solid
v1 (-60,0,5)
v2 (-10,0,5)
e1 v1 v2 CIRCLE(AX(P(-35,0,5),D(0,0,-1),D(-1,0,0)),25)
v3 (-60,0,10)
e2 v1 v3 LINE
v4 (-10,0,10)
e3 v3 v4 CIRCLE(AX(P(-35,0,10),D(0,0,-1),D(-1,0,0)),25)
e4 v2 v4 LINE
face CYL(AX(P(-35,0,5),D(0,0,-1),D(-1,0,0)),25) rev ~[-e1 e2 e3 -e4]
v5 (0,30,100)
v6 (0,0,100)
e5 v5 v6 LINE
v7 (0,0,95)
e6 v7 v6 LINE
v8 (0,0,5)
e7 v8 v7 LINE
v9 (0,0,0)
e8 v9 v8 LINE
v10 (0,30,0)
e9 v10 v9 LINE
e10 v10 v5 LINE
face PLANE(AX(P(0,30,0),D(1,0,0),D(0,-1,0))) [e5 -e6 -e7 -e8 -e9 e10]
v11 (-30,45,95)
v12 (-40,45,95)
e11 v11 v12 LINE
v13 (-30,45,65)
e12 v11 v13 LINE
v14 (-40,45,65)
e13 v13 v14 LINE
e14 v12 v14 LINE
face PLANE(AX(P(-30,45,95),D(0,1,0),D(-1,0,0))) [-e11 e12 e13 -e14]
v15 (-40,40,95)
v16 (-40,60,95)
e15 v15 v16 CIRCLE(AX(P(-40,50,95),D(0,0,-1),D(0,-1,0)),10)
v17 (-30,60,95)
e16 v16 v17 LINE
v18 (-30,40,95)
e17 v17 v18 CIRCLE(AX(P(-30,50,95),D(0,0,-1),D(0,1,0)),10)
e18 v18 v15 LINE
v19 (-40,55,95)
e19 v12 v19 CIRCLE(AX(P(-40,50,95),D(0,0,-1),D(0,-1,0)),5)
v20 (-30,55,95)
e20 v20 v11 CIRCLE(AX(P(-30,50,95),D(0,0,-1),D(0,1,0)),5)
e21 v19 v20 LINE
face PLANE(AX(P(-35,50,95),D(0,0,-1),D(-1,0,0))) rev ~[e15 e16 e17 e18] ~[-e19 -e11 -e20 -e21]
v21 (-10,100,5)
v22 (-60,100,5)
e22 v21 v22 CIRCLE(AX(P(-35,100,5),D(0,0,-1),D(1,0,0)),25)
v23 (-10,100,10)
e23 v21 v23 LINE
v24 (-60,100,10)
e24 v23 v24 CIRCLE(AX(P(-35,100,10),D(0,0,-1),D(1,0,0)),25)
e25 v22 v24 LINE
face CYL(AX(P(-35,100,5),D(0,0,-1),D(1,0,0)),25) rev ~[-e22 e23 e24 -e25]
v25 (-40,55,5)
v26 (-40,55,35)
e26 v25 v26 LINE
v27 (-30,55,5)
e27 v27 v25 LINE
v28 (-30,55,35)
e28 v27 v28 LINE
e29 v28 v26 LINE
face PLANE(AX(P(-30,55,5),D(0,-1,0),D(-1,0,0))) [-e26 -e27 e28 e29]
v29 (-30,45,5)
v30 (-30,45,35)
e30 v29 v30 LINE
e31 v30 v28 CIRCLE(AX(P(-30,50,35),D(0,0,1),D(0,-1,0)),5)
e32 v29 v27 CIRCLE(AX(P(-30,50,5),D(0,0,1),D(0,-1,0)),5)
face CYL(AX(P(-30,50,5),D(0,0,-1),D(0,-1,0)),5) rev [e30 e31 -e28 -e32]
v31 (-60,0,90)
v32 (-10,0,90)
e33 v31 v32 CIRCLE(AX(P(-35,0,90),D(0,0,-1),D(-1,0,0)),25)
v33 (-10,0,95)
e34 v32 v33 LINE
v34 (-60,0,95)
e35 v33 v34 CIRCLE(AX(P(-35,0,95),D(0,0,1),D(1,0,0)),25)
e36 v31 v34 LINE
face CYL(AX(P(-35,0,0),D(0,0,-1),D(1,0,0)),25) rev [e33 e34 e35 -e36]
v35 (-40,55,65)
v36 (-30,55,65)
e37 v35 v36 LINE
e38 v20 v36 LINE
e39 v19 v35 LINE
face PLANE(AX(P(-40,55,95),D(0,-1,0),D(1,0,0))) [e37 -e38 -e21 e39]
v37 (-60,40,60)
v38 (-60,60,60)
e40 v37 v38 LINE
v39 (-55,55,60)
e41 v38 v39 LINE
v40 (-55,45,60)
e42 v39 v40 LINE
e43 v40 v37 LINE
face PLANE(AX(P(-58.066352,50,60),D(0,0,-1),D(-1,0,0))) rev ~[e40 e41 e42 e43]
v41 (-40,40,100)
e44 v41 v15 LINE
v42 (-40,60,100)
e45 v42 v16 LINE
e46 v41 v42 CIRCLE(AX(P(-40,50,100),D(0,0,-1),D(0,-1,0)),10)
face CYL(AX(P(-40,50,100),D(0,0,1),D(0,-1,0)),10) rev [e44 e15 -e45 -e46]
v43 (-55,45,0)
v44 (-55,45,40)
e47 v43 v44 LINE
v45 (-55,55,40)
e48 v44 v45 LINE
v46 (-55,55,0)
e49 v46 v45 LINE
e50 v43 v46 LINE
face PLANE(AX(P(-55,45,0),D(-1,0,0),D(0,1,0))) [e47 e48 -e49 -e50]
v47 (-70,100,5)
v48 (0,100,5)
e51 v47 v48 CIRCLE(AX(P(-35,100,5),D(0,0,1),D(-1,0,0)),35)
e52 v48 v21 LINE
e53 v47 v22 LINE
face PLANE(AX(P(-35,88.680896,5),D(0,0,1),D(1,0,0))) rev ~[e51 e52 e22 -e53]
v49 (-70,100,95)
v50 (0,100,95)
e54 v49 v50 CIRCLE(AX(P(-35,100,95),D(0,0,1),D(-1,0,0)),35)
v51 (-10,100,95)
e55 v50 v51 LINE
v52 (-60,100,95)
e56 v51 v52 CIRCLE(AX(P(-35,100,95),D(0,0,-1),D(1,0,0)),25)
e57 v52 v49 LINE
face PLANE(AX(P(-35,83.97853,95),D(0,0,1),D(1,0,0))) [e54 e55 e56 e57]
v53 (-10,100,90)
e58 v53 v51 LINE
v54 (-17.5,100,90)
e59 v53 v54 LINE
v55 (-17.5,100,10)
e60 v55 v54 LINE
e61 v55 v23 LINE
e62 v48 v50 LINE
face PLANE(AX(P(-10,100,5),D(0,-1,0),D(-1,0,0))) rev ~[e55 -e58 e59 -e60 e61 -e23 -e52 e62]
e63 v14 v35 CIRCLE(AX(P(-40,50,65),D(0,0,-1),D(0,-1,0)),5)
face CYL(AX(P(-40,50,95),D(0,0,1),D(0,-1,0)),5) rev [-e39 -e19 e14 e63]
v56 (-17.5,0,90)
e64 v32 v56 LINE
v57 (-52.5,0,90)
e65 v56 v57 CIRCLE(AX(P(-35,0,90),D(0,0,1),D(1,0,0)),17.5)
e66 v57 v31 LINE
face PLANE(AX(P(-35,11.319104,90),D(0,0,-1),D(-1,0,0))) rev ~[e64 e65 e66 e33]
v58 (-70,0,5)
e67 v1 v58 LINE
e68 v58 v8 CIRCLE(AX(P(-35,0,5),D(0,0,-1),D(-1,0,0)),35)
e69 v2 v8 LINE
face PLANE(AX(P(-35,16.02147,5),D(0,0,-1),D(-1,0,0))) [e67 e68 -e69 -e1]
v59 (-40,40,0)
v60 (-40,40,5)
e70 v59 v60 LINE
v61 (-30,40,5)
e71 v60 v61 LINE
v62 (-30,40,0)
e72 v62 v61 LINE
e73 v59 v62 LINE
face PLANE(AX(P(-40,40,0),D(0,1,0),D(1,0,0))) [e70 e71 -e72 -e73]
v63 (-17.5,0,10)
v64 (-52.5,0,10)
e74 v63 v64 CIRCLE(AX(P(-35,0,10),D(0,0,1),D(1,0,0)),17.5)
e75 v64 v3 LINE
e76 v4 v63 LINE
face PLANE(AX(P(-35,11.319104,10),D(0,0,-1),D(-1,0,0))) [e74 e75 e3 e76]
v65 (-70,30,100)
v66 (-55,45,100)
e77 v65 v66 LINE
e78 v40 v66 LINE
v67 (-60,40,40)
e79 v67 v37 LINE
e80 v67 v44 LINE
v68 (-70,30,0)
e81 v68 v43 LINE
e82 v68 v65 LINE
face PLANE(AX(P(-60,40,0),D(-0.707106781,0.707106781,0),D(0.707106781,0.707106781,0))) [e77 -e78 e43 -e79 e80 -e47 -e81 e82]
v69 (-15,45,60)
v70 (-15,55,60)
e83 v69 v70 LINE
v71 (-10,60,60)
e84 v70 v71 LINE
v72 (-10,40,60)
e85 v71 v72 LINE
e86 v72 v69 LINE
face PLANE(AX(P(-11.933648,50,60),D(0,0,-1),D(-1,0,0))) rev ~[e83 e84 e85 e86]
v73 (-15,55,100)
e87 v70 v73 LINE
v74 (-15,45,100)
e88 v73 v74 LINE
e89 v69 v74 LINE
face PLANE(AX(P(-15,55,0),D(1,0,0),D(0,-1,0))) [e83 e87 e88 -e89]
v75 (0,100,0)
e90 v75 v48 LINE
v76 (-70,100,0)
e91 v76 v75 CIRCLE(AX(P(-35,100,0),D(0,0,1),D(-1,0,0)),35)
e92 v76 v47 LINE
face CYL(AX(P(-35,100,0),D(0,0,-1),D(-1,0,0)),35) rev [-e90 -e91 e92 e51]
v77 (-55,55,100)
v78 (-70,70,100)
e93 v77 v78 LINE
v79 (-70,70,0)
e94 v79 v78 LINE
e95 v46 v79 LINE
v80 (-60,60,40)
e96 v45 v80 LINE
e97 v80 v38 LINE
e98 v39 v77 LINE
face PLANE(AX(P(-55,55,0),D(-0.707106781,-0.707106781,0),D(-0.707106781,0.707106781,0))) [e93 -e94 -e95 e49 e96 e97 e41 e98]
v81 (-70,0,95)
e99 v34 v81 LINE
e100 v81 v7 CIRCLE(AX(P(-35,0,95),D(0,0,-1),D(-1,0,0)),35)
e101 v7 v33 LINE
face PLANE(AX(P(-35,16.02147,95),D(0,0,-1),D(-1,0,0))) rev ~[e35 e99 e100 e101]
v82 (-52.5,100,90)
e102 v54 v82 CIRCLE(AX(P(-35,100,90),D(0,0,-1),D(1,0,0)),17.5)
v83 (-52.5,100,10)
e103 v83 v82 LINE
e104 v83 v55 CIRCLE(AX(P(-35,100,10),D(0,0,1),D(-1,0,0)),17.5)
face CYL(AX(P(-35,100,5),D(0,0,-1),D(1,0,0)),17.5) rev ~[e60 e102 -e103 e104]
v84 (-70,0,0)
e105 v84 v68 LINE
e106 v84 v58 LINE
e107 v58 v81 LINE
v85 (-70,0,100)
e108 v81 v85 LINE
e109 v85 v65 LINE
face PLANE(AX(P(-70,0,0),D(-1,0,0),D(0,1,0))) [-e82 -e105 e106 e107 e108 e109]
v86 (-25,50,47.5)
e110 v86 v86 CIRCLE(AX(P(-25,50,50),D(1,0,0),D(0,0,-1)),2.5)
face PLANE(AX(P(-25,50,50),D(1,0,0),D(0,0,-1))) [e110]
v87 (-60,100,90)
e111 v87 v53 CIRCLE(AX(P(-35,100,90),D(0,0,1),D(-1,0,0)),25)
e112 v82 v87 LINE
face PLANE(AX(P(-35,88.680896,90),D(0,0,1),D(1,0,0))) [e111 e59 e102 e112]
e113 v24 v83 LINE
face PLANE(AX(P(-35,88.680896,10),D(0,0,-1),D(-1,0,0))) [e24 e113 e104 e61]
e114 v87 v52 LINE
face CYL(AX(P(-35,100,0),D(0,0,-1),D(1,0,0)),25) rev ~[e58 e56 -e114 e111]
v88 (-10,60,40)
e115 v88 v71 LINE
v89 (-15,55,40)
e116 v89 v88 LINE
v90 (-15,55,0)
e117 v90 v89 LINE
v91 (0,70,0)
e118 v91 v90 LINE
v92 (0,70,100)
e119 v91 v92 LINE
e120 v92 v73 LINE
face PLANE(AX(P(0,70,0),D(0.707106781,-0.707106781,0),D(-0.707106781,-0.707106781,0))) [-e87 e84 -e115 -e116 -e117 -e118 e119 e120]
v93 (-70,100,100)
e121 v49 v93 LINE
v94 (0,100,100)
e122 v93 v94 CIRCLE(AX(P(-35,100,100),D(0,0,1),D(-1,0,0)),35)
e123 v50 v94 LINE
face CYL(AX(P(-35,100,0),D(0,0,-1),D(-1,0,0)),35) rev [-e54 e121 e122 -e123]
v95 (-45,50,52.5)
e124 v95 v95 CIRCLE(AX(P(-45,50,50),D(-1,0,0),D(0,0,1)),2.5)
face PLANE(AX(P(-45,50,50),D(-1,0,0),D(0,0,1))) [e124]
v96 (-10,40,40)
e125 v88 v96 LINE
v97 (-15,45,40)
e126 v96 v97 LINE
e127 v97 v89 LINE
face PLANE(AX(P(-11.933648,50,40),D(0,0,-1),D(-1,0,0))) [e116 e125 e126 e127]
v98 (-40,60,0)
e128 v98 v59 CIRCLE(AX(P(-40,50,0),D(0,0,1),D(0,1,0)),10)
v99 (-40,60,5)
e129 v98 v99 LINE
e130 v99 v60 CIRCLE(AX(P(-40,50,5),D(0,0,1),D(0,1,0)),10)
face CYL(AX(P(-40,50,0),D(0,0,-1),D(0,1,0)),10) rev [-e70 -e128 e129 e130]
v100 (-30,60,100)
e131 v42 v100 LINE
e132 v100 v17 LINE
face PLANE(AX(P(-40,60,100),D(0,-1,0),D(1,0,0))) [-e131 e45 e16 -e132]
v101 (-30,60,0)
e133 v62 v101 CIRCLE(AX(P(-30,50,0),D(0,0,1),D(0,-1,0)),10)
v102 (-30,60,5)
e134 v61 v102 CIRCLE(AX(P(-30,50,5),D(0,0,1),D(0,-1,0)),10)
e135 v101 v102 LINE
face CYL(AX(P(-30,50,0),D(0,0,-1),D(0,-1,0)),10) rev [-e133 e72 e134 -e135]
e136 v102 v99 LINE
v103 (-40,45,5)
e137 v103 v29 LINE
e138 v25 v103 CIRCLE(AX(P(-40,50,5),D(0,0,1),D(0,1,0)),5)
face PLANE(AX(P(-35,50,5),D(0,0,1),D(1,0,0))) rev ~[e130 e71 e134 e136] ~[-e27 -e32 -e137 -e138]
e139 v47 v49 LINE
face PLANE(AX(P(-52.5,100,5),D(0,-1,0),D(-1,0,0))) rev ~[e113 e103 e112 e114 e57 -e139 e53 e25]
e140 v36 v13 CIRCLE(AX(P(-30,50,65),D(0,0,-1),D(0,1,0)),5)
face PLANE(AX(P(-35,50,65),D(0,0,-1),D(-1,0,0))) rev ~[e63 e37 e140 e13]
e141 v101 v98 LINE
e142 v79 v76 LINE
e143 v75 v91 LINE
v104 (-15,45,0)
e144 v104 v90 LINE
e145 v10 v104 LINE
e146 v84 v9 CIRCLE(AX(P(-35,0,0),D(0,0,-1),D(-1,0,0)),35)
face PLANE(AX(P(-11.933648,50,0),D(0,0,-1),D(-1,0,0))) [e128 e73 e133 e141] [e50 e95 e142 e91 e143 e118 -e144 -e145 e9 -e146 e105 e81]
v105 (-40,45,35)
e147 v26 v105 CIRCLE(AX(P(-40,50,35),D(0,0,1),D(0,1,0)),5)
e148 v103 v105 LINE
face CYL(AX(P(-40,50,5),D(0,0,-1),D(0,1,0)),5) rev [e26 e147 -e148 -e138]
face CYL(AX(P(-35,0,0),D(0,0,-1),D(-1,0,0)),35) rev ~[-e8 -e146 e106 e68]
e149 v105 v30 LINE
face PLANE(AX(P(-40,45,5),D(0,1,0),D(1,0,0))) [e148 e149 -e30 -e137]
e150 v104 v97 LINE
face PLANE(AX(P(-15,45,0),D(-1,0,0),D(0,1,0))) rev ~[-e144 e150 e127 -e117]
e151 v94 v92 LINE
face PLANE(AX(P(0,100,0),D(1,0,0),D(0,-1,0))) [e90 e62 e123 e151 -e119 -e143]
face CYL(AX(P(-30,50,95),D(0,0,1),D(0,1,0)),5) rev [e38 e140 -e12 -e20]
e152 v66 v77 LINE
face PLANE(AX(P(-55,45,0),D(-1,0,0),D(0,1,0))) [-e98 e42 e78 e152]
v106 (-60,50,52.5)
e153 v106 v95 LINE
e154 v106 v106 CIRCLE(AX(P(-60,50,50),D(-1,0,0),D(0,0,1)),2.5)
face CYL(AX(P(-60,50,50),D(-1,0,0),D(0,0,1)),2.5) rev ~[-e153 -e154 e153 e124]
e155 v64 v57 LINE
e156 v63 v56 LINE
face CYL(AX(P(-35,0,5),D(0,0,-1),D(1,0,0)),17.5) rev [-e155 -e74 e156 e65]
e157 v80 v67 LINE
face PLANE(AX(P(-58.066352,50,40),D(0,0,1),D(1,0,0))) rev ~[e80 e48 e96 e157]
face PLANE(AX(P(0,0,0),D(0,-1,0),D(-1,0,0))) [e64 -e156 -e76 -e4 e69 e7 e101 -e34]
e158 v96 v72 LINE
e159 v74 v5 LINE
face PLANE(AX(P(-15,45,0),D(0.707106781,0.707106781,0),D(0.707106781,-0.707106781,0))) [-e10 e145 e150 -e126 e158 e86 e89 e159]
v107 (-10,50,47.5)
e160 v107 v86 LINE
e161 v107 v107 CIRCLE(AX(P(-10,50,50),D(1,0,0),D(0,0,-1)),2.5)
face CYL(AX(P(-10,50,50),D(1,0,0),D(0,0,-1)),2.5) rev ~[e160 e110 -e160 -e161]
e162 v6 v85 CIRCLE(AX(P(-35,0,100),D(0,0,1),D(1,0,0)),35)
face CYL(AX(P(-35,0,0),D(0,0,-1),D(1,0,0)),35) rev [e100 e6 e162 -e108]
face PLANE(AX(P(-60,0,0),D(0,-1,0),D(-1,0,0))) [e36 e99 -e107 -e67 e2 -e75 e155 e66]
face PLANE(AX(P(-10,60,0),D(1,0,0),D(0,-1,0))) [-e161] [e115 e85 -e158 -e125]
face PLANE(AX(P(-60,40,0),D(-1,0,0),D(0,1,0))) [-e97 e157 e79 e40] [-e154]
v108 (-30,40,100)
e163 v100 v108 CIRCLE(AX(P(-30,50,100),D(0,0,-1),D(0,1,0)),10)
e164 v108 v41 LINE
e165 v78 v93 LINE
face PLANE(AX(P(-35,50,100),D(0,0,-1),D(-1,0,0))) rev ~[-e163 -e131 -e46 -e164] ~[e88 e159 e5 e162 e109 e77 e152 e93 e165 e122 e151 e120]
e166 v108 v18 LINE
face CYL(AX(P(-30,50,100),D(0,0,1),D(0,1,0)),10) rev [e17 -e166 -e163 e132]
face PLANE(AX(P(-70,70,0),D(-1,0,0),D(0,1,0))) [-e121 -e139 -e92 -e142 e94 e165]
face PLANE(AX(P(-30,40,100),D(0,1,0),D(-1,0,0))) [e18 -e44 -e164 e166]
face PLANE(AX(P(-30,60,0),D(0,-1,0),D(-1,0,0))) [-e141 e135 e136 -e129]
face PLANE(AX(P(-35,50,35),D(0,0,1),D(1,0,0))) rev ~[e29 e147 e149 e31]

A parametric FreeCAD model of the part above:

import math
import FreeCAD as App
import Part
import Sketcher


def add_polygon(sketch, points):
    """Adds a closed chain of lines whose ends are joined by coincident constraints."""
    first, n = sketch.GeometryCount, len(points)
    for a, b in zip(points, points[1:] + points[:1]):
        sketch.addGeometry(Part.LineSegment(App.Vector(*a, 0), App.Vector(*b, 0)), False)
    for i in range(n):
        sketch.addConstraint(Sketcher.Constraint("Coincident", first + i, 2, first + (i + 1) % n, 1))

doc = App.newDocument("Part")
body = doc.addObject("PartDesign::Body", "Body")

sketch1 = body.newObject("Sketcher::SketchObject", "Sketch")
sketch1.AttachmentSupport = (doc.getObject("XY_Plane"), [""])
sketch1.MapMode = "FlatFace"
sketch1.addGeometry([
    Part.LineSegment(App.Vector(-70, 30, 0), App.Vector(-70, 0, 0)),
    Part.ArcOfCircle(Part.Circle(App.Vector(-35, 0, 0), App.Vector(0, 0, 1), 35), math.radians(0), math.radians(180)),
    Part.LineSegment(App.Vector(0, 0, 0), App.Vector(0, 30, 0)),
    Part.LineSegment(App.Vector(0, 30, 0), App.Vector(-15, 45, 0)),
    Part.LineSegment(App.Vector(-15, 45, 0), App.Vector(-15, 55, 0)),
    Part.LineSegment(App.Vector(-15, 55, 0), App.Vector(0, 70, 0)),
    Part.LineSegment(App.Vector(0, 70, 0), App.Vector(0, 100, 0)),
    Part.ArcOfCircle(Part.Circle(App.Vector(-35, 100, 0), App.Vector(0, 0, 1), 35), math.radians(180), math.radians(360)),
    Part.LineSegment(App.Vector(-70, 100, 0), App.Vector(-70, 70, 0)),
    Part.LineSegment(App.Vector(-70, 70, 0), App.Vector(-55, 55, 0)),
    Part.LineSegment(App.Vector(-55, 55, 0), App.Vector(-55, 45, 0)),
    Part.LineSegment(App.Vector(-55, 45, 0), App.Vector(-70, 30, 0)),
], False)
sketch1.addConstraint([
    Sketcher.Constraint("Tangent", 0, 2, 1, 2),
    Sketcher.Constraint("Tangent", 1, 1, 2, 1),
    Sketcher.Constraint("Coincident", 2, 2, 3, 1),
    Sketcher.Constraint("Coincident", 3, 2, 4, 1),
    Sketcher.Constraint("Coincident", 4, 2, 5, 1),
    Sketcher.Constraint("Coincident", 5, 2, 6, 1),
    Sketcher.Constraint("Tangent", 6, 2, 7, 2),
    Sketcher.Constraint("Tangent", 7, 1, 8, 1),
    Sketcher.Constraint("Coincident", 8, 2, 9, 1),
    Sketcher.Constraint("Coincident", 9, 2, 10, 1),
    Sketcher.Constraint("Coincident", 10, 2, 11, 1),
    Sketcher.Constraint("Coincident", 11, 2, 0, 1),
    Sketcher.Constraint("Vertical", 0),
    Sketcher.Constraint("Vertical", 2),
    Sketcher.Constraint("Vertical", 4),
    Sketcher.Constraint("Vertical", 6),
    Sketcher.Constraint("Vertical", 8),
    Sketcher.Constraint("Vertical", 10),
    Sketcher.Constraint("Coincident", 1, 1, -1, 1),
    Sketcher.Constraint("Equal", 1, 7),
    Sketcher.Constraint("PointOnObject", 5, 2, -2),
    Sketcher.Constraint("Perpendicular", 3, 5),
    Sketcher.Constraint("Perpendicular", 5, 9),
    Sketcher.Constraint("Perpendicular", 9, 11),
    Sketcher.Constraint("Horizontal", 5, 2, 8, 2),
    Sketcher.Constraint("Horizontal", 4, 2, 9, 2),
    Sketcher.Constraint("Horizontal", 3, 2, 10, 2),
    Sketcher.Constraint("Horizontal", 2, 2, 11, 2),
    Sketcher.Constraint("Equal", 2, 6),
    Sketcher.Constraint("Radius", 1, 35.0),
    Sketcher.Constraint("DistanceY", 0, 2, 0, 1, 30.0),
    Sketcher.Constraint("DistanceY", 4, 1, 4, 2, 10.0),
    Sketcher.Constraint("DistanceY", -1, 1, 7, 3, 100.0),
])
pad1 = body.newObject("PartDesign::Pad", "Pad")
pad1.Profile = sketch1
pad1.Length = 100

sketch2 = body.newObject("Sketcher::SketchObject", "Sketch001")
sketch2.AttachmentSupport = (doc.getObject("XY_Plane"), [""])
sketch2.MapMode = "FlatFace"
sketch2.addGeometry([
    Part.LineSegment(App.Vector(-10, 100, 0), App.Vector(0, 100, 0)),
    Part.ArcOfCircle(Part.Circle(App.Vector(-35, 100, 0), App.Vector(0, 0, 1), 35), math.radians(180), math.radians(360)),
    Part.LineSegment(App.Vector(-70, 100, 0), App.Vector(-60, 100, 0)),
    Part.ArcOfCircle(Part.Circle(App.Vector(-35, 100, 0), App.Vector(0, 0, 1), 25), math.radians(180), math.radians(360)),
    Part.LineSegment(App.Vector(0, 0, 0), App.Vector(-10, 0, 0)),
    Part.ArcOfCircle(Part.Circle(App.Vector(-35, 0, 0), App.Vector(0, 0, 1), 25), math.radians(0), math.radians(180)),
    Part.LineSegment(App.Vector(-60, 0, 0), App.Vector(-70, 0, 0)),
    Part.ArcOfCircle(Part.Circle(App.Vector(-35, 0, 0), App.Vector(0, 0, 1), 35), math.radians(0), math.radians(180)),
], False)
sketch2.addConstraint([
    Sketcher.Constraint("Coincident", 0, 2, 1, 2),
    Sketcher.Constraint("Coincident", 1, 1, 2, 1),
    Sketcher.Constraint("Coincident", 2, 2, 3, 1),
    Sketcher.Constraint("Coincident", 3, 2, 0, 1),
    Sketcher.Constraint("Coincident", 4, 2, 5, 1),
    Sketcher.Constraint("Coincident", 5, 2, 6, 1),
    Sketcher.Constraint("Coincident", 6, 2, 7, 2),
    Sketcher.Constraint("Coincident", 7, 1, 4, 1),
    Sketcher.Constraint("Horizontal", 0),
    Sketcher.Constraint("Horizontal", 2),
    Sketcher.Constraint("Horizontal", 4),
    Sketcher.Constraint("Horizontal", 6),
    Sketcher.Constraint("Coincident", 7, 1, -1, 1),
    Sketcher.Constraint("Coincident", 3, 3, 1, 3),
    Sketcher.Constraint("Coincident", 7, 3, 5, 3),
    Sketcher.Constraint("Equal", 3, 5),
    Sketcher.Constraint("Equal", 1, 7),
    Sketcher.Constraint("PointOnObject", 5, 3, -1),
    Sketcher.Constraint("PointOnObject", 0, 2, -2),
    Sketcher.Constraint("PointOnObject", 5, 2, -1),
    Sketcher.Constraint("Horizontal", 3, 3, 0, 2),
    Sketcher.Constraint("Horizontal", 0, 2, 1, 1),
    Sketcher.Constraint("Radius", 1, 35.0),
    Sketcher.Constraint("Radius", 3, 25.0),
    Sketcher.Constraint("DistanceY", -1, 1, 1, 3, 100.0),
])
pad2 = body.newObject("PartDesign::Pad", "Pad001")
pad2.Profile = sketch2
pad2.Length = 95

sketch3 = body.newObject("Sketcher::SketchObject", "Sketch002")
sketch3.AttachmentSupport = (doc.getObject("XY_Plane"), [""])
sketch3.MapMode = "FlatFace"
sketch3.addGeometry([
    Part.LineSegment(App.Vector(-10, 100, 0), App.Vector(0, 100, 0)),
    Part.ArcOfCircle(Part.Circle(App.Vector(-35, 100, 0), App.Vector(0, 0, 1), 35), math.radians(180), math.radians(360)),
    Part.LineSegment(App.Vector(-70, 100, 0), App.Vector(-60, 100, 0)),
    Part.ArcOfCircle(Part.Circle(App.Vector(-35, 100, 0), App.Vector(0, 0, 1), 25), math.radians(180), math.radians(360)),
    Part.LineSegment(App.Vector(-60, 0, 0), App.Vector(-70, 0, 0)),
    Part.ArcOfCircle(Part.Circle(App.Vector(-35, 0, 0), App.Vector(0, 0, 1), 35), math.radians(0), math.radians(180)),
    Part.LineSegment(App.Vector(0, 0, 0), App.Vector(-10, 0, 0)),
    Part.ArcOfCircle(Part.Circle(App.Vector(-35, 0, 0), App.Vector(0, 0, 1), 25), math.radians(0), math.radians(180)),
], False)
sketch3.addConstraint([
    Sketcher.Constraint("Coincident", 0, 2, 1, 2),
    Sketcher.Constraint("Coincident", 1, 1, 2, 1),
    Sketcher.Constraint("Coincident", 2, 2, 3, 1),
    Sketcher.Constraint("Coincident", 3, 2, 0, 1),
    Sketcher.Constraint("Coincident", 4, 2, 5, 2),
    Sketcher.Constraint("Coincident", 5, 1, 6, 1),
    Sketcher.Constraint("Coincident", 6, 2, 7, 1),
    Sketcher.Constraint("Coincident", 7, 2, 4, 1),
    Sketcher.Constraint("Horizontal", 0),
    Sketcher.Constraint("Horizontal", 2),
    Sketcher.Constraint("Horizontal", 4),
    Sketcher.Constraint("Horizontal", 6),
    Sketcher.Constraint("Coincident", 5, 1, -1, 1),
    Sketcher.Constraint("Coincident", 3, 3, 1, 3),
    Sketcher.Constraint("Coincident", 7, 3, 5, 3),
    Sketcher.Constraint("Equal", 1, 5),
    Sketcher.Constraint("Equal", 3, 7),
    Sketcher.Constraint("PointOnObject", 5, 3, -1),
    Sketcher.Constraint("PointOnObject", 0, 2, -2),
    Sketcher.Constraint("PointOnObject", 4, 2, -1),
    Sketcher.Constraint("Horizontal", 3, 3, 0, 2),
    Sketcher.Constraint("Horizontal", 0, 2, 1, 1),
    Sketcher.Constraint("Radius", 1, 35.0),
    Sketcher.Constraint("Radius", 3, 25.0),
    Sketcher.Constraint("DistanceY", -1, 1, 1, 3, 100.0),
])
pocket1 = body.newObject("PartDesign::Pocket", "Pocket")
pocket1.Profile = sketch3
pocket1.Length = 5
pocket1.Reversed = True

sketch4 = body.newObject("Sketcher::SketchObject", "Sketch003")
sketch4.AttachmentSupport = (doc.getObject("XY_Plane"), [""])
sketch4.MapMode = "FlatFace"
sketch4.AttachmentOffset = App.Placement(App.Vector(0, 0, 5), App.Rotation())
sketch4.addGeometry([
    Part.LineSegment(App.Vector(-18, 100, 0), App.Vector(-10, 100, 0)),
    Part.ArcOfCircle(Part.Circle(App.Vector(-35, 100, 0), App.Vector(0, 0, 1), 25), math.radians(180), math.radians(360)),
    Part.LineSegment(App.Vector(-60, 100, 0), App.Vector(-52, 100, 0)),
    Part.ArcOfCircle(Part.Circle(App.Vector(-35, 100, 0), App.Vector(0, 0, 1), 18), math.radians(180), math.radians(360)),
    Part.LineSegment(App.Vector(-10, 0, 0), App.Vector(-18, 0, 0)),
    Part.ArcOfCircle(Part.Circle(App.Vector(-35, 0, 0), App.Vector(0, 0, 1), 18), math.radians(0), math.radians(180)),
    Part.LineSegment(App.Vector(-52, 0, 0), App.Vector(-60, 0, 0)),
    Part.ArcOfCircle(Part.Circle(App.Vector(-35, 0, 0), App.Vector(0, 0, 1), 25), math.radians(0), math.radians(180)),
], False)
sketch4.addConstraint([
    Sketcher.Constraint("Coincident", 0, 2, 1, 2),
    Sketcher.Constraint("Coincident", 1, 1, 2, 1),
    Sketcher.Constraint("Coincident", 2, 2, 3, 1),
    Sketcher.Constraint("Coincident", 3, 2, 0, 1),
    Sketcher.Constraint("Coincident", 4, 2, 5, 1),
    Sketcher.Constraint("Coincident", 5, 2, 6, 1),
    Sketcher.Constraint("Coincident", 6, 2, 7, 2),
    Sketcher.Constraint("Coincident", 7, 1, 4, 1),
    Sketcher.Constraint("Horizontal", 0),
    Sketcher.Constraint("Horizontal", 2),
    Sketcher.Constraint("Horizontal", 4),
    Sketcher.Constraint("Horizontal", 6),
    Sketcher.Constraint("Coincident", 3, 3, 1, 3),
    Sketcher.Constraint("Coincident", 7, 3, 5, 3),
    Sketcher.Constraint("Equal", 3, 5),
    Sketcher.Constraint("Equal", 1, 7),
    Sketcher.Constraint("PointOnObject", 5, 3, -1),
    Sketcher.Constraint("PointOnObject", 4, 2, -1),
    Sketcher.Constraint("PointOnObject", 5, 2, -1),
    Sketcher.Constraint("Horizontal", 3, 3, 0, 2),
    Sketcher.Constraint("Horizontal", 0, 2, 1, 1),
    Sketcher.Constraint("Vertical", 3, 3, 5, 3),
    Sketcher.Constraint("Radius", 1, 25.0),
    Sketcher.Constraint("Radius", 3, 17.5),
    Sketcher.Constraint("DistanceX", 1, 3, -1, 1, 35.0),
    Sketcher.Constraint("DistanceY", -1, 1, 1, 3, 100.0),
])
pad3 = body.newObject("PartDesign::Pad", "Pad002")
pad3.Profile = sketch4
pad3.Length = 85

sketch5 = body.newObject("Sketcher::SketchObject", "Sketch004")
sketch5.AttachmentSupport = (doc.getObject("XY_Plane"), [""])
sketch5.MapMode = "FlatFace"
sketch5.AttachmentOffset = App.Placement(App.Vector(0, 0, 5), App.Rotation())
sketch5.addGeometry([
    Part.ArcOfCircle(Part.Circle(App.Vector(-35, 100, 0), App.Vector(0, 0, 1), 18), math.radians(180), math.radians(360)),
    Part.LineSegment(App.Vector(-18, 100, 0), App.Vector(-10, 100, 0)),
    Part.ArcOfCircle(Part.Circle(App.Vector(-35, 100, 0), App.Vector(0, 0, 1), 25), math.radians(180), math.radians(360)),
    Part.LineSegment(App.Vector(-60, 100, 0), App.Vector(-52, 100, 0)),
    Part.LineSegment(App.Vector(-10, 0, 0), App.Vector(-18, 0, 0)),
    Part.ArcOfCircle(Part.Circle(App.Vector(-35, 0, 0), App.Vector(0, 0, 1), 18), math.radians(0), math.radians(180)),
    Part.LineSegment(App.Vector(-52, 0, 0), App.Vector(-60, 0, 0)),
    Part.ArcOfCircle(Part.Circle(App.Vector(-35, 0, 0), App.Vector(0, 0, 1), 25), math.radians(0), math.radians(180)),
], False)
sketch5.addConstraint([
    Sketcher.Constraint("Coincident", 0, 2, 1, 1),
    Sketcher.Constraint("Coincident", 1, 2, 2, 2),
    Sketcher.Constraint("Coincident", 2, 1, 3, 1),
    Sketcher.Constraint("Coincident", 3, 2, 0, 1),
    Sketcher.Constraint("Coincident", 4, 2, 5, 1),
    Sketcher.Constraint("Coincident", 5, 2, 6, 1),
    Sketcher.Constraint("Coincident", 6, 2, 7, 2),
    Sketcher.Constraint("Coincident", 7, 1, 4, 1),
    Sketcher.Constraint("Horizontal", 1),
    Sketcher.Constraint("Horizontal", 3),
    Sketcher.Constraint("Horizontal", 4),
    Sketcher.Constraint("Horizontal", 6),
    Sketcher.Constraint("Coincident", 2, 3, 0, 3),
    Sketcher.Constraint("Coincident", 7, 3, 5, 3),
    Sketcher.Constraint("Equal", 0, 5),
    Sketcher.Constraint("Equal", 2, 7),
    Sketcher.Constraint("PointOnObject", 5, 3, -1),
    Sketcher.Constraint("PointOnObject", 4, 2, -1),
    Sketcher.Constraint("PointOnObject", 5, 2, -1),
    Sketcher.Constraint("Horizontal", 2, 3, 0, 2),
    Sketcher.Constraint("Horizontal", 1, 2, 2, 1),
    Sketcher.Constraint("Vertical", 2, 3, 5, 3),
    Sketcher.Constraint("Radius", 2, 25.0),
    Sketcher.Constraint("Radius", 0, 17.5),
    Sketcher.Constraint("DistanceX", 0, 3, -1, 1, 35.0),
    Sketcher.Constraint("DistanceY", -1, 1, 0, 3, 100.0),
])
pocket2 = body.newObject("PartDesign::Pocket", "Pocket001")
pocket2.Profile = sketch5
pocket2.Length = 5
pocket2.Reversed = True

sketch6 = body.newObject("Sketcher::SketchObject", "Sketch005")
sketch6.AttachmentSupport = (doc.getObject("XY_Plane"), [""])
sketch6.MapMode = "FlatFace"
add_polygon(sketch6, [(-10, 40), (-15, 45), (-15, 55), (-10, 60)])
add_polygon(sketch6, [(-60, 60), (-55, 55), (-55, 45), (-60, 40)])
sketch6.addConstraint([
    Sketcher.Constraint("Vertical", 1),
    Sketcher.Constraint("Vertical", 3),
    Sketcher.Constraint("Vertical", 5),
    Sketcher.Constraint("Vertical", 7),
    Sketcher.Constraint("Perpendicular", 0, 2),
    Sketcher.Constraint("Perpendicular", 2, 4),
    Sketcher.Constraint("Perpendicular", 4, 6),
    Sketcher.Constraint("Horizontal", 1, 2, 4, 2),
    Sketcher.Constraint("Horizontal", 0, 2, 5, 2),
    Sketcher.Constraint("Horizontal", 3, 2, 6, 2),
    Sketcher.Constraint("Horizontal", 2, 2, 7, 2),
    Sketcher.Constraint("DistanceY", 1, 1, 1, 2, 10.0),
    Sketcher.Constraint("DistanceY", 3, 2, 3, 1, 20.0),
    Sketcher.Constraint("DistanceX", 0, 2, -1, 1, 15.0),
    Sketcher.Constraint("DistanceY", -1, 1, 0, 2, 45.0),
    Sketcher.Constraint("DistanceX", 4, 2, -1, 1, 55.0),
])
pad4 = body.newObject("PartDesign::Pad", "Pad003")
pad4.Profile = sketch6
pad4.Length = 60

sketch7 = body.newObject("Sketcher::SketchObject", "Sketch006")
sketch7.AttachmentSupport = (doc.getObject("XY_Plane"), [""])
sketch7.MapMode = "FlatFace"
add_polygon(sketch7, [(-10, 40), (-15, 45), (-15, 55), (-10, 60)])
add_polygon(sketch7, [(-55, 45), (-60, 40), (-60, 60), (-55, 55)])
sketch7.addConstraint([
    Sketcher.Constraint("Vertical", 1),
    Sketcher.Constraint("Vertical", 3),
    Sketcher.Constraint("Vertical", 5),
    Sketcher.Constraint("Vertical", 7),
    Sketcher.Constraint("Perpendicular", 0, 2),
    Sketcher.Constraint("Parallel", 2, 4),
    Sketcher.Constraint("Perpendicular", 4, 6),
    Sketcher.Constraint("Horizontal", 3, 2, 4, 2),
    Sketcher.Constraint("Horizontal", 2, 2, 5, 2),
    Sketcher.Constraint("Horizontal", 1, 2, 6, 2),
    Sketcher.Constraint("Horizontal", 0, 2, 7, 2),
    Sketcher.Constraint("DistanceY", 1, 1, 1, 2, 10.0),
    Sketcher.Constraint("DistanceY", 3, 2, 3, 1, 20.0),
    Sketcher.Constraint("DistanceX", 0, 2, -1, 1, 15.0),
    Sketcher.Constraint("DistanceY", -1, 1, 0, 2, 45.0),
    Sketcher.Constraint("DistanceX", 4, 2, -1, 1, 60.0),
])
pocket3 = body.newObject("PartDesign::Pocket", "Pocket002")
pocket3.Profile = sketch7
pocket3.Length = 40
pocket3.Reversed = True

sketch8 = body.newObject("Sketcher::SketchObject", "Sketch007")
sketch8.AttachmentSupport = (doc.getObject("YZ_Plane"), [""])
sketch8.MapMode = "FlatFace"
sketch8.AttachmentOffset = App.Placement(App.Vector(0, 0, -10), App.Rotation())
sketch8.addGeometry(Part.Circle(App.Vector(50, 50, 0), App.Vector(0, 0, 1), 2.5), False)
sketch8.addConstraint([
    Sketcher.Constraint("Diameter", 0, 5.0),
    Sketcher.Constraint("DistanceX", -1, 1, 0, 3, 50.0),
    Sketcher.Constraint("DistanceY", -1, 1, 0, 3, 50.0),
])
pocket4 = body.newObject("PartDesign::Pocket", "Pocket003")
pocket4.Profile = sketch8
pocket4.Length = 15

sketch9 = body.newObject("Sketcher::SketchObject", "Sketch008")
sketch9.AttachmentSupport = (doc.getObject("YZ_Plane"), [""])
sketch9.MapMode = "FlatFace"
sketch9.AttachmentOffset = App.Placement(App.Vector(0, 0, -60), App.Rotation())
sketch9.addGeometry(Part.Circle(App.Vector(50, 50, 0), App.Vector(0, 0, 1), 2.5), False)
sketch9.addConstraint([
    Sketcher.Constraint("Diameter", 0, 5.0),
    Sketcher.Constraint("DistanceX", -1, 1, 0, 3, 50.0),
    Sketcher.Constraint("DistanceY", -1, 1, 0, 3, 50.0),
])
pocket5 = body.newObject("PartDesign::Pocket", "Pocket004")
pocket5.Profile = sketch9
pocket5.Length = 15
pocket5.Reversed = True

sketch10 = body.newObject("Sketcher::SketchObject", "Sketch009")
sketch10.AttachmentSupport = (doc.getObject("XY_Plane"), [""])
sketch10.MapMode = "FlatFace"
sketch10.addGeometry([
    Part.LineSegment(App.Vector(-40, 60, 0), App.Vector(-30, 60, 0)),
    Part.ArcOfCircle(Part.Circle(App.Vector(-30, 50, 0), App.Vector(0, 0, 1), 10), math.radians(-90), math.radians(90)),
    Part.LineSegment(App.Vector(-30, 40, 0), App.Vector(-40, 40, 0)),
    Part.ArcOfCircle(Part.Circle(App.Vector(-40, 50, 0), App.Vector(0, 0, 1), 10), math.radians(90), math.radians(270)),
], False)
sketch10.addConstraint([
    Sketcher.Constraint("Tangent", 0, 2, 1, 2),
    Sketcher.Constraint("Tangent", 1, 1, 2, 1),
    Sketcher.Constraint("Tangent", 2, 2, 3, 2),
    Sketcher.Constraint("Tangent", 3, 1, 0, 1),
    Sketcher.Constraint("Horizontal", 0),
    Sketcher.Constraint("Horizontal", 2),
    Sketcher.Constraint("Radius", 1, 10.0),
    Sketcher.Constraint("DistanceX", 0, 1, 0, 2, 10.0),
    Sketcher.Constraint("DistanceX", 1, 3, -1, 1, 30.0),
    Sketcher.Constraint("DistanceY", -1, 1, 1, 3, 50.0),
])
pocket6 = body.newObject("PartDesign::Pocket", "Pocket005")
pocket6.Profile = sketch10
pocket6.Length = 5
pocket6.Reversed = True

sketch11 = body.newObject("Sketcher::SketchObject", "Sketch010")
sketch11.AttachmentSupport = (doc.getObject("XY_Plane"), [""])
sketch11.MapMode = "FlatFace"
sketch11.AttachmentOffset = App.Placement(App.Vector(0, 0, 5), App.Rotation())
sketch11.addGeometry([
    Part.LineSegment(App.Vector(-40, 55, 0), App.Vector(-30, 55, 0)),
    Part.ArcOfCircle(Part.Circle(App.Vector(-30, 50, 0), App.Vector(0, 0, 1), 5), math.radians(-90), math.radians(90)),
    Part.LineSegment(App.Vector(-30, 45, 0), App.Vector(-40, 45, 0)),
    Part.ArcOfCircle(Part.Circle(App.Vector(-40, 50, 0), App.Vector(0, 0, 1), 5), math.radians(90), math.radians(270)),
], False)
sketch11.addConstraint([
    Sketcher.Constraint("Tangent", 0, 2, 1, 2),
    Sketcher.Constraint("Tangent", 1, 1, 2, 1),
    Sketcher.Constraint("Tangent", 2, 2, 3, 2),
    Sketcher.Constraint("Tangent", 3, 1, 0, 1),
    Sketcher.Constraint("Horizontal", 0),
    Sketcher.Constraint("Horizontal", 2),
    Sketcher.Constraint("Radius", 1, 5.0),
    Sketcher.Constraint("DistanceX", 0, 1, 0, 2, 10.0),
    Sketcher.Constraint("DistanceX", 1, 3, -1, 1, 30.0),
    Sketcher.Constraint("DistanceY", -1, 1, 1, 3, 50.0),
])
pocket7 = body.newObject("PartDesign::Pocket", "Pocket006")
pocket7.Profile = sketch11
pocket7.Length = 30
pocket7.Reversed = True

sketch12 = body.newObject("Sketcher::SketchObject", "Sketch011")
sketch12.AttachmentSupport = (doc.getObject("XY_Plane"), [""])
sketch12.MapMode = "FlatFace"
sketch12.AttachmentOffset = App.Placement(App.Vector(0, 0, 100), App.Rotation())
sketch12.addGeometry([
    Part.LineSegment(App.Vector(-30, 60, 0), App.Vector(-40, 60, 0)),
    Part.ArcOfCircle(Part.Circle(App.Vector(-40, 50, 0), App.Vector(0, 0, 1), 10), math.radians(90), math.radians(270)),
    Part.LineSegment(App.Vector(-40, 40, 0), App.Vector(-30, 40, 0)),
    Part.ArcOfCircle(Part.Circle(App.Vector(-30, 50, 0), App.Vector(0, 0, 1), 10), math.radians(-90), math.radians(90)),
], False)
sketch12.addConstraint([
    Sketcher.Constraint("Tangent", 0, 2, 1, 1),
    Sketcher.Constraint("Tangent", 1, 2, 2, 1),
    Sketcher.Constraint("Tangent", 2, 2, 3, 1),
    Sketcher.Constraint("Tangent", 3, 2, 0, 1),
    Sketcher.Constraint("Horizontal", 0),
    Sketcher.Constraint("Horizontal", 2),
    Sketcher.Constraint("Radius", 1, 10.0),
    Sketcher.Constraint("DistanceX", 0, 2, 0, 1, 10.0),
    Sketcher.Constraint("DistanceX", 1, 3, -1, 1, 40.0),
    Sketcher.Constraint("DistanceY", -1, 1, 1, 3, 50.0),
])
pocket8 = body.newObject("PartDesign::Pocket", "Pocket007")
pocket8.Profile = sketch12
pocket8.Length = 5

sketch13 = body.newObject("Sketcher::SketchObject", "Sketch012")
sketch13.AttachmentSupport = (doc.getObject("XY_Plane"), [""])
sketch13.MapMode = "FlatFace"
sketch13.AttachmentOffset = App.Placement(App.Vector(0, 0, 95), App.Rotation())
sketch13.addGeometry([
    Part.LineSegment(App.Vector(-30, 55, 0), App.Vector(-40, 55, 0)),
    Part.ArcOfCircle(Part.Circle(App.Vector(-40, 50, 0), App.Vector(0, 0, 1), 5), math.radians(90), math.radians(270)),
    Part.LineSegment(App.Vector(-40, 45, 0), App.Vector(-30, 45, 0)),
    Part.ArcOfCircle(Part.Circle(App.Vector(-30, 50, 0), App.Vector(0, 0, 1), 5), math.radians(-90), math.radians(90)),
], False)
sketch13.addConstraint([
    Sketcher.Constraint("Tangent", 0, 2, 1, 1),
    Sketcher.Constraint("Tangent", 1, 2, 2, 1),
    Sketcher.Constraint("Tangent", 2, 2, 3, 1),
    Sketcher.Constraint("Tangent", 3, 2, 0, 1),
    Sketcher.Constraint("Horizontal", 0),
    Sketcher.Constraint("Horizontal", 2),
    Sketcher.Constraint("Radius", 1, 5.0),
    Sketcher.Constraint("DistanceX", 0, 2, 0, 1, 10.0),
    Sketcher.Constraint("DistanceX", 1, 3, -1, 1, 40.0),
    Sketcher.Constraint("DistanceY", -1, 1, 1, 3, 50.0),
])
pocket9 = body.newObject("PartDesign::Pocket", "Pocket008")
pocket9.Profile = sketch13
pocket9.Length = 30

doc.recompute()
